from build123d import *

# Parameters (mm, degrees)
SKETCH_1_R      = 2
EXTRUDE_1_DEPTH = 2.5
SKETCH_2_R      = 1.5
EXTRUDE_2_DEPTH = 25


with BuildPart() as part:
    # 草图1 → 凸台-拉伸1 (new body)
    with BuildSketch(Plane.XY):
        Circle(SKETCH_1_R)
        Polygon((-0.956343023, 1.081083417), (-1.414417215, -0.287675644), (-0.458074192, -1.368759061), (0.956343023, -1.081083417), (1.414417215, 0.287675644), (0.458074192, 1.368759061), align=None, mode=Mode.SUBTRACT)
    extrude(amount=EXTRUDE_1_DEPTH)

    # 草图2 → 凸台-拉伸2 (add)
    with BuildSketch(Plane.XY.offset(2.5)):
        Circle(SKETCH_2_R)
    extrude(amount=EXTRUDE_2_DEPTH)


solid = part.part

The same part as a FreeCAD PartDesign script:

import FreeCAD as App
import Part
import Sketcher

doc = App.newDocument("Part")
params = doc.addObject("Spreadsheet::Sheet", "Params")
for row, (alias, value) in enumerate([
    ("sketch1_diameter", "4 mm"),
    ("pad1_length", "2.5 mm"),
    ("sketch2_diameter", "3 mm"),
    ("pad2_length", "25 mm"),
], start=1):
    params.set(f"A{row}", alias)
    params.set(f"B{row}", "=" + value)
    params.setAlias(f"B{row}", alias)

body = doc.addObject("PartDesign::Body", "Body")

# Sketch on XY plane
sketch1 = doc.addObject("Sketcher::SketchObject", "Sketch")
body.addObject(sketch1)
sketch1.AttachmentSupport = (doc.XY_Plane, [""])
sketch1.MapMode = "FlatFace"
sketch1.addGeometry(Part.Circle(App.Vector(0, 0, 0), App.Vector(0, 0, 1), 2), False)
sketch1.addGeometry(Part.LineSegment(App.Vector(-1.4, -0.3, 0), App.Vector(-1, 1.1, 0)), False)
sketch1.addGeometry(Part.LineSegment(App.Vector(-1, 1.1, 0), App.Vector(0.5, 1.4, 0)), False)
sketch1.addGeometry(Part.LineSegment(App.Vector(0.5, 1.4, 0), App.Vector(1.4, 0.3, 0)), False)
sketch1.addGeometry(Part.LineSegment(App.Vector(1.4, 0.3, 0), App.Vector(1, -1.1, 0)), False)
sketch1.addGeometry(Part.LineSegment(App.Vector(1, -1.1, 0), App.Vector(-0.5, -1.4, 0)), False)
sketch1.addGeometry(Part.LineSegment(App.Vector(-0.5, -1.4, 0), App.Vector(-1.4, -0.3, 0)), False)
sketch1.addConstraint(Sketcher.Constraint("Coincident", 1, 2, 2, 1))
sketch1.addConstraint(Sketcher.Constraint("Coincident", 2, 2, 3, 1))
sketch1.addConstraint(Sketcher.Constraint("Coincident", 3, 2, 4, 1))
sketch1.addConstraint(Sketcher.Constraint("Coincident", 4, 2, 5, 1))
sketch1.addConstraint(Sketcher.Constraint("Coincident", 5, 2, 6, 1))
sketch1.addConstraint(Sketcher.Constraint("Coincident", 6, 2, 1, 1))
sketch1.addConstraint(Sketcher.Constraint("Coincident", 0, 3, -1, 1))
sketch1.addConstraint(Sketcher.Constraint("Symmetric", 1, 2, 4, 2, -1, 1))
sketch1.addConstraint(Sketcher.Constraint("Symmetric", 2, 2, 5, 2, -1, 1))
sketch1.addConstraint(Sketcher.Constraint("Symmetric", 3, 2, 6, 2, -1, 1))
sketch1.addConstraint(Sketcher.Constraint("Equal", 1, 2))
sketch1.addConstraint(Sketcher.Constraint("Equal", 2, 3))
sketch1.addConstraint(Sketcher.Constraint("Diameter", 0, 4.0))
sketch1.addConstraint(Sketcher.Constraint("DistanceY", -1, 1, 2, 2, 1.368759))
sketch1.addConstraint(Sketcher.Constraint("DistanceX", 1, 2, 3, 2, 2.37076))
sketch1.addConstraint(Sketcher.Constraint("DistanceY", 4, 2, 3, 2, 1.368759))
sketch1.addConstraint(Sketcher.Constraint("DistanceX", 2, 2, 4, 2, 0.498269))
sketch1.setExpression("Constraints[12]", "Params.sketch1_diameter")
pad1 = doc.addObject("PartDesign::Pad", "Pad")
body.addObject(pad1)
pad1.Profile = sketch1
pad1.setExpression("Length", "Params.pad1_length")

# Sketch on XY plane
sketch2 = doc.addObject("Sketcher::SketchObject", "Sketch001")
body.addObject(sketch2)
sketch2.AttachmentSupport = (doc.XY_Plane, [""])
sketch2.MapMode = "FlatFace"
sketch2.AttachmentOffset = App.Placement(App.Vector(0, 0, 2.5), App.Rotation())
sketch2.addGeometry(Part.Circle(App.Vector(0, 0, 0), App.Vector(0, 0, 1), 1.5), False)
sketch2.addConstraint(Sketcher.Constraint("Coincident", 0, 3, -1, 1))
sketch2.addConstraint(Sketcher.Constraint("Diameter", 0, 3.0))
sketch2.setExpression("Constraints[1]", "Params.sketch2_diameter")
pad2 = doc.addObject("PartDesign::Pad", "Pad001")
body.addObject(pad2)
pad2.Profile = sketch2
pad2.setExpression("Length", "Params.pad2_length")

doc.recompute()
